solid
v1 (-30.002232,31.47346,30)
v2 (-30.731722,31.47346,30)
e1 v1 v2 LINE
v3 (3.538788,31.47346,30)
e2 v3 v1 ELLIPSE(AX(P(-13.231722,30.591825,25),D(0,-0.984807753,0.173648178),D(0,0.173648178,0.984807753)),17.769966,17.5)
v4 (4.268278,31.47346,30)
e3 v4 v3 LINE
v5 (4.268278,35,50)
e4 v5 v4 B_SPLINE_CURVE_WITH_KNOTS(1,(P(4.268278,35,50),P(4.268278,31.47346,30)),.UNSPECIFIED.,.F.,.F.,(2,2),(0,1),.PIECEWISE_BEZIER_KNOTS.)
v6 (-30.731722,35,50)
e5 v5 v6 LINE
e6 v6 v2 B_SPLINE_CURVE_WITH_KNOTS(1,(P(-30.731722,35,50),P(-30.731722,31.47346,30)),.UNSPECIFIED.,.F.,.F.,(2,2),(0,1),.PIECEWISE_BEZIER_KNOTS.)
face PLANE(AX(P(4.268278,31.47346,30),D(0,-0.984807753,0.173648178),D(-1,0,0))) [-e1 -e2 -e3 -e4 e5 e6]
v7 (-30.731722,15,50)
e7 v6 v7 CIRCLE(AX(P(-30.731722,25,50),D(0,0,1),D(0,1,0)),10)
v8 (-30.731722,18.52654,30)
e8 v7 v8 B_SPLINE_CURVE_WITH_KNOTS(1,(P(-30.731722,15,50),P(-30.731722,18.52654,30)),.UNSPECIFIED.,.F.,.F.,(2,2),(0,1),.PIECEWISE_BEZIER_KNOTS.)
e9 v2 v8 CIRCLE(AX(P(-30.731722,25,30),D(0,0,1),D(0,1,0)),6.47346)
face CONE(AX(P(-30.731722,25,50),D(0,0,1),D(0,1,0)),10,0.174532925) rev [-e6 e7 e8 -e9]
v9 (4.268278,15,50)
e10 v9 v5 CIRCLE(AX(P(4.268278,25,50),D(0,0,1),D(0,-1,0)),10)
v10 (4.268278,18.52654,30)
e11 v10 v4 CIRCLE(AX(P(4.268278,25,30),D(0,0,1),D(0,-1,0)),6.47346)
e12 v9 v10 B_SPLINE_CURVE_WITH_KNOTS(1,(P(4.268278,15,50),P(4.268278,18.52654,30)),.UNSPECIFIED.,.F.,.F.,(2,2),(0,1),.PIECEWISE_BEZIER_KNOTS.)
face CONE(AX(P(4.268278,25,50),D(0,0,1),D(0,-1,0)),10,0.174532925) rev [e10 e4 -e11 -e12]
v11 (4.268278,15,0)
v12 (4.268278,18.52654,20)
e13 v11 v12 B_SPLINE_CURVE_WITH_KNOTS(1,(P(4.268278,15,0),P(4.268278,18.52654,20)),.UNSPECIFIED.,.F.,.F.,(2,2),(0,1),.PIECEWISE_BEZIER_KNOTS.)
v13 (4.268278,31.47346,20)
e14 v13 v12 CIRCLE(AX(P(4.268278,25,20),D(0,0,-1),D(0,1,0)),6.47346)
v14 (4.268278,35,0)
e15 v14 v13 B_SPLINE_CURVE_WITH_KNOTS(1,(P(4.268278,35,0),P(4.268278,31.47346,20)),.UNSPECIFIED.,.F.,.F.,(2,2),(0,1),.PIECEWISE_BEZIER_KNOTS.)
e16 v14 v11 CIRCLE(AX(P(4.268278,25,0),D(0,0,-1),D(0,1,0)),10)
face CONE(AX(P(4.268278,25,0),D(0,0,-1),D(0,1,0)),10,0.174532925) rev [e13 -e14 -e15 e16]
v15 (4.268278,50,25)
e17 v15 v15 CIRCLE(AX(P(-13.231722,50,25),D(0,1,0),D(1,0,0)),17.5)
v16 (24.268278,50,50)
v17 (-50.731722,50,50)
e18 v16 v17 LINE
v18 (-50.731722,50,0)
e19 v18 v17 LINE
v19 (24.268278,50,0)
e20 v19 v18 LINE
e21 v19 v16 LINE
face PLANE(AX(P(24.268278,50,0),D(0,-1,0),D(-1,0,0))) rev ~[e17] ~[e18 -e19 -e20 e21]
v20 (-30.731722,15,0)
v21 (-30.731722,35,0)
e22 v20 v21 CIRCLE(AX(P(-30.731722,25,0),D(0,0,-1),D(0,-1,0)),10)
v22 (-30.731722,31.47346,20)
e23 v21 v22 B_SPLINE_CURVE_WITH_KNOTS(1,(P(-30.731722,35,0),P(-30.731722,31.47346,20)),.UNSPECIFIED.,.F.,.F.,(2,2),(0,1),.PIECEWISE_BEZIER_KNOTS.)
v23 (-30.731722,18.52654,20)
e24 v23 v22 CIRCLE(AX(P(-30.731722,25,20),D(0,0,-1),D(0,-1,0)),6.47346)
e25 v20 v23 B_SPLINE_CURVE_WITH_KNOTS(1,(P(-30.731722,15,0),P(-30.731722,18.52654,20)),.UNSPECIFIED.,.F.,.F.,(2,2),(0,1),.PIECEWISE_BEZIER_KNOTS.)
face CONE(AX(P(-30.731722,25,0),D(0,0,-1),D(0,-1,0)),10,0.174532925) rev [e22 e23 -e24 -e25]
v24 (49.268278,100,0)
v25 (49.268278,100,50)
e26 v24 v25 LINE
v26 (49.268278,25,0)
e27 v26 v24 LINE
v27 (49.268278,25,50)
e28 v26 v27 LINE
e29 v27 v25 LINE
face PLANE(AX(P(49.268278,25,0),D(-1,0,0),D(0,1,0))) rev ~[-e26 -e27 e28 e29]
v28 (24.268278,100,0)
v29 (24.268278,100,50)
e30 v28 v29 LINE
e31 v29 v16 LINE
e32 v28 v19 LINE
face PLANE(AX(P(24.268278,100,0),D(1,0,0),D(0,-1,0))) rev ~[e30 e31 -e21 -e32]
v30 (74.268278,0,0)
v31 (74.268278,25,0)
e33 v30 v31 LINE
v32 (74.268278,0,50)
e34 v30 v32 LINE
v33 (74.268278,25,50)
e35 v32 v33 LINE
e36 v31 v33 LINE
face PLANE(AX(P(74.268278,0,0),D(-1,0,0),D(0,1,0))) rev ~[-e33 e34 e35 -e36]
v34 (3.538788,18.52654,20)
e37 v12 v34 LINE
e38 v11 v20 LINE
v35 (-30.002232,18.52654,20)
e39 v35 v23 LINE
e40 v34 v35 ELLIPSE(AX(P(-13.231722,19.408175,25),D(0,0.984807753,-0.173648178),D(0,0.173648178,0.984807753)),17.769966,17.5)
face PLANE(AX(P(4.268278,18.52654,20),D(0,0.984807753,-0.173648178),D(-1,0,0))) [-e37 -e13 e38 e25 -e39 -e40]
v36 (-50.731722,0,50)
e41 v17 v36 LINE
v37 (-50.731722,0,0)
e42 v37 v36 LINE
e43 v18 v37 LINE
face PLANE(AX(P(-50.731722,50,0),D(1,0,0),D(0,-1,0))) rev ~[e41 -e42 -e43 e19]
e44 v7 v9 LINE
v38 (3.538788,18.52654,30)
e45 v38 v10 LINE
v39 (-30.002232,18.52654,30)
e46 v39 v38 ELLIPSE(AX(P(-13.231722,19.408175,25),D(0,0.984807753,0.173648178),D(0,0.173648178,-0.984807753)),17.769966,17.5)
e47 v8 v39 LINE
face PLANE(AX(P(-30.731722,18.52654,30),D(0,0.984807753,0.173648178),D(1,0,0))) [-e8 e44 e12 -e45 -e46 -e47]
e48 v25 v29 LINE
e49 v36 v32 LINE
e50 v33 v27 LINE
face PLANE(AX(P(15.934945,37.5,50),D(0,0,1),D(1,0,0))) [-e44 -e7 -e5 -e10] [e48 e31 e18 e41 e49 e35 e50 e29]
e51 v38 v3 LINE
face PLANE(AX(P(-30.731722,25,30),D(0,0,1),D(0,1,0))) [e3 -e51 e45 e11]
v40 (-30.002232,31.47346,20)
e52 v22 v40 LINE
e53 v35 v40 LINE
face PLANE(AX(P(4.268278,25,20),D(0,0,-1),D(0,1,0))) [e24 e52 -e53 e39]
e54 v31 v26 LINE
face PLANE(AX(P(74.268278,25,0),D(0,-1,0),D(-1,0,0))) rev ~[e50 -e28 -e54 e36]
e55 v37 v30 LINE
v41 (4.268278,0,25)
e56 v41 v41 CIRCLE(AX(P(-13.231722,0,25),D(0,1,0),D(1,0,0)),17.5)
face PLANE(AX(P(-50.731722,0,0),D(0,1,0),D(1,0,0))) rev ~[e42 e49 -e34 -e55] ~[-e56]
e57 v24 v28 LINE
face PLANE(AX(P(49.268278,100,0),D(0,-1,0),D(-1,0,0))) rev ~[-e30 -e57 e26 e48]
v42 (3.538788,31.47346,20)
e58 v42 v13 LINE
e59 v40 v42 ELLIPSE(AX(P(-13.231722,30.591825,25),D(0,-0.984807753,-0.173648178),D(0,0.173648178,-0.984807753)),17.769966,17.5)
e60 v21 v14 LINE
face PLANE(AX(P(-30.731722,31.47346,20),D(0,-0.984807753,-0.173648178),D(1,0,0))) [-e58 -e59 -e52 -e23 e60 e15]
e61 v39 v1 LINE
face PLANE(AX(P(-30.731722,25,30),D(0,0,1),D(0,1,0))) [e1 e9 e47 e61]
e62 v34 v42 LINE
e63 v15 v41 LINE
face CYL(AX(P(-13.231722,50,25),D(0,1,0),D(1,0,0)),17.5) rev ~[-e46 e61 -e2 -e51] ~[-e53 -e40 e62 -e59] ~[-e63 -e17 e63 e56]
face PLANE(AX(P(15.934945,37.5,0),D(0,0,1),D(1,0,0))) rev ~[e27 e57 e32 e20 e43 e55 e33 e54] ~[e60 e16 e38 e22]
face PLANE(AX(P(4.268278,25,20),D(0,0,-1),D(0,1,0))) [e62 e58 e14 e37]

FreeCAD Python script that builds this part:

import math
import FreeCAD as App
import Part
import Sketcher
from FreeCAD import Vector

doc = App.newDocument("Part")
body = doc.addObject("PartDesign::Body", "Body")

# Sketch on XY plane
sketch1 = body.newObject("Sketcher::SketchObject", "Sketch")
sketch1.AttachmentSupport = (doc.getObject("XY_Plane"), [""])
sketch1.MapMode = "FlatFace"
sketch1.addGeometry(Part.LineSegment(Vector(-50.731722, 0, 0), Vector(74.268278, 0, 0)), False)
sketch1.addGeometry(Part.LineSegment(Vector(74.268278, 0, 0), Vector(74.268278, 25, 0)), False)
sketch1.addGeometry(Part.LineSegment(Vector(74.268278, 25, 0), Vector(49.268278, 25, 0)), False)
sketch1.addGeometry(Part.LineSegment(Vector(49.268278, 25, 0), Vector(49.268278, 100, 0)), False)
sketch1.addGeometry(Part.LineSegment(Vector(49.268278, 100, 0), Vector(24.268278, 100, 0)), False)
sketch1.addGeometry(Part.LineSegment(Vector(24.268278, 100, 0), Vector(24.268278, 50, 0)), False)
sketch1.addGeometry(Part.LineSegment(Vector(24.268278, 50, 0), Vector(-50.731722, 50, 0)), False)
sketch1.addGeometry(Part.LineSegment(Vector(-50.731722, 50, 0), Vector(-50.731722, 0, 0)), False)
sketch1.addConstraint(Sketcher.Constraint("Coincident", 0, 2, 1, 1))
sketch1.addConstraint(Sketcher.Constraint("Coincident", 1, 2, 2, 1))
sketch1.addConstraint(Sketcher.Constraint("Coincident", 2, 2, 3, 1))
sketch1.addConstraint(Sketcher.Constraint("Coincident", 3, 2, 4, 1))
sketch1.addConstraint(Sketcher.Constraint("Coincident", 4, 2, 5, 1))
sketch1.addConstraint(Sketcher.Constraint("Coincident", 5, 2, 6, 1))
sketch1.addConstraint(Sketcher.Constraint("Coincident", 6, 2, 7, 1))
sketch1.addConstraint(Sketcher.Constraint("Coincident", 7, 2, 0, 1))
sketch1.addConstraint(Sketcher.Constraint("Horizontal", 0))
sketch1.addConstraint(Sketcher.Constraint("Vertical", 1))
sketch1.addConstraint(Sketcher.Constraint("Horizontal", 2))
sketch1.addConstraint(Sketcher.Constraint("Vertical", 3))
sketch1.addConstraint(Sketcher.Constraint("Horizontal", 4))
sketch1.addConstraint(Sketcher.Constraint("Vertical", 5))
sketch1.addConstraint(Sketcher.Constraint("Horizontal", 6))
sketch1.addConstraint(Sketcher.Constraint("Vertical", 7))
sketch1.addConstraint(Sketcher.Constraint("PointOnObject", 0, 2, -1))
sketch1.addConstraint(Sketcher.Constraint("Equal", 2, 4))
sketch1.addConstraint(Sketcher.Constraint("Equal", 4, 1))
sketch1.addConstraint(Sketcher.Constraint("Equal", 6, 3))
sketch1.addConstraint(Sketcher.Constraint("Equal", 5, 7))
sketch1.addConstraint(Sketcher.Constraint("DistanceX", 0, 1, 0, 2, 125.0))
sketch1.addConstraint(Sketcher.Constraint("DistanceX", 2, 2, 2, 1, 25.0))
sketch1.addConstraint(Sketcher.Constraint("DistanceX", -1, 1, 0, 2, 74.268278))
pad1 = body.newObject("PartDesign::Pad", "Pad")
pad1.Profile = sketch1
pad1.Length = 50

# Sketch on XY plane
sketch2 = body.newObject("Sketcher::SketchObject", "Sketch001")
sketch2.AttachmentSupport = (doc.getObject("XY_Plane"), [""])
sketch2.MapMode = "FlatFace"
sketch2.AttachmentOffset = App.Placement(Vector(0, 0, 50), App.Rotation())
sketch2.addGeometry(Part.ArcOfCircle(Part.Circle(Vector(-30.731722, 25, 0), Vector(0, 0, 1), 10), math.radians(90), math.radians(270)), False)
sketch2.addGeometry(Part.LineSegment(Vector(-30.731722, 15, 0), Vector(4.268278, 15, 0)), False)
sketch2.addGeometry(Part.ArcOfCircle(Part.Circle(Vector(4.268278, 25, 0), Vector(0, 0, 1), 10), math.radians(-90), math.radians(90)), False)
sketch2.addGeometry(Part.LineSegment(Vector(4.268278, 35, 0), Vector(-30.731722, 35, 0)), False)
sketch2.addConstraint(Sketcher.Constraint("Tangent", 0, 2, 1, 1))
sketch2.addConstraint(Sketcher.Constraint("Tangent", 1, 2, 2, 1))
sketch2.addConstraint(Sketcher.Constraint("Tangent", 2, 2, 3, 1))
sketch2.addConstraint(Sketcher.Constraint("Tangent", 3, 2, 0, 1))
sketch2.addConstraint(Sketcher.Constraint("Horizontal", 1))
sketch2.addConstraint(Sketcher.Constraint("Horizontal", 3))
sketch2.addConstraint(Sketcher.Constraint("Radius", 0, 10.0))
sketch2.addConstraint(Sketcher.Constraint("DistanceX", 1, 1, 1, 2, 35.0))
sketch2.addConstraint(Sketcher.Constraint("DistanceY", -1, 1, 0, 3, 25.0))
sketch2.addConstraint(Sketcher.Constraint("DistanceX", 0, 3, -1, 1, 30.731722))
pocket1 = body.newObject("PartDesign::Pocket", "Pocket")
pocket1.Profile = sketch2
pocket1.Length = 20
pocket1.TaperAngle = -10

# Sketch on XY plane
sketch3 = body.newObject("Sketcher::SketchObject", "Sketch002")
sketch3.AttachmentSupport = (doc.getObject("XY_Plane"), [""])
sketch3.MapMode = "FlatFace"
sketch3.addGeometry(Part.ArcOfCircle(Part.Circle(Vector(4.268278, 25, 0), Vector(0, 0, 1), 10), math.radians(-90), math.radians(90)), False)
sketch3.addGeometry(Part.LineSegment(Vector(4.268278, 15, 0), Vector(-30.731722, 15, 0)), False)
sketch3.addGeometry(Part.ArcOfCircle(Part.Circle(Vector(-30.731722, 25, 0), Vector(0, 0, 1), 10), math.radians(90), math.radians(270)), False)
sketch3.addGeometry(Part.LineSegment(Vector(-30.731722, 35, 0), Vector(4.268278, 35, 0)), False)
sketch3.addConstraint(Sketcher.Constraint("Tangent", 0, 1, 1, 1))
sketch3.addConstraint(Sketcher.Constraint("Tangent", 1, 2, 2, 2))
sketch3.addConstraint(Sketcher.Constraint("Tangent", 2, 1, 3, 1))
sketch3.addConstraint(Sketcher.Constraint("Tangent", 3, 2, 0, 2))
sketch3.addConstraint(Sketcher.Constraint("Horizontal", 1))
sketch3.addConstraint(Sketcher.Constraint("Horizontal", 3))
sketch3.addConstraint(Sketcher.Constraint("Radius", 0, 10.0))
sketch3.addConstraint(Sketcher.Constraint("DistanceX", 1, 2, 1, 1, 35.0))
sketch3.addConstraint(Sketcher.Constraint("DistanceY", -1, 1, 0, 3, 25.0))
sketch3.addConstraint(Sketcher.Constraint("DistanceX", -1, 1, 0, 3, 4.268278))
pocket2 = body.newObject("PartDesign::Pocket", "Pocket001")
pocket2.Profile = sketch3
pocket2.Length = 20
pocket2.Reversed = True
pocket2.TaperAngle = -10

# Sketch on XZ plane
sketch4 = body.newObject("Sketcher::SketchObject", "Sketch003")
sketch4.AttachmentSupport = (doc.getObject("XZ_Plane"), [""])
sketch4.MapMode = "FlatFace"
sketch4.AttachmentOffset = App.Placement(Vector(0, 0, -50), App.Rotation())
sketch4.addGeometry(Part.Circle(Vector(-13.231722, 25, 0), Vector(0, 0, 1), 17.5), False)
sketch4.addConstraint(Sketcher.Constraint("Diameter", 0, 35.0))
sketch4.addConstraint(Sketcher.Constraint("DistanceY", -1, 1, 0, 3, 25.0))
sketch4.addConstraint(Sketcher.Constraint("DistanceX", 0, 3, -1, 1, 13.231722))
pocket3 = body.newObject("PartDesign::Pocket", "Pocket002")
pocket3.Profile = sketch4
pocket3.Length = 60
pocket3.Reversed = True

doc.recompute()
